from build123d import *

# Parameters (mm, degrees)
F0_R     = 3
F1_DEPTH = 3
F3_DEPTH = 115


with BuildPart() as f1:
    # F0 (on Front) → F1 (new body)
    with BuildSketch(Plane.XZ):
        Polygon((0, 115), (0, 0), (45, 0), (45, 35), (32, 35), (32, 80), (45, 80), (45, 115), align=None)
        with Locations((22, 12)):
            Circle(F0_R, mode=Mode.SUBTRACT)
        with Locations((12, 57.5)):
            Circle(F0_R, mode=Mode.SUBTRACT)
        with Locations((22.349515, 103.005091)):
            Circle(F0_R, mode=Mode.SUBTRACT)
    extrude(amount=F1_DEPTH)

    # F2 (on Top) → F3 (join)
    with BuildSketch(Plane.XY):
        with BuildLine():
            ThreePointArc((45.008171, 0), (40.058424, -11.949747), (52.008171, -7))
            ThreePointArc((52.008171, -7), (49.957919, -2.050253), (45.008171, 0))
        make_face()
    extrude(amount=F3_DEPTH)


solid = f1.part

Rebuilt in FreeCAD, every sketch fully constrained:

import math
import FreeCAD as App
import Part
import Sketcher
Q = App.Units.Quantity


def add_polygon(sketch, points):
    """Adds a closed chain of lines whose ends are joined by coincident constraints."""
    first, n = sketch.GeometryCount, len(points)
    for a, b in zip(points, points[1:] + points[:1]):
        sketch.addGeometry(Part.LineSegment(App.Vector(*a, 0), App.Vector(*b, 0)), False)
    for i in range(n):
        sketch.addConstraint(Sketcher.Constraint("Coincident", first + i, 2, first + (i + 1) % n, 1))

doc = App.newDocument("Part")
body = doc.addObject("PartDesign::Body", "Body")

sketch1 = doc.addObject("Sketcher::SketchObject", "Sketch")
body.addObject(sketch1)
sketch1.AttachmentSupport = (doc.XZ_Plane, [""])
sketch1.MapMode = "FlatFace"
add_polygon(sketch1, [(0, 115), (0, 0), (45, 0), (45, 35), (32, 35), (32, 80), (45, 80), (45, 115)])
sketch1.addGeometry(Part.Circle(App.Vector(12, 57.5, 0), App.Vector(0, 0, 1), 3), False)
sketch1.addGeometry(Part.Circle(App.Vector(22, 12, 0), App.Vector(0, 0, 1), 3), False)
sketch1.addGeometry(Part.Circle(App.Vector(22.3, 103, 0), App.Vector(0, 0, 1), 3), False)
sketch1.addConstraint([
    Sketcher.Constraint("Vertical", 0),
    Sketcher.Constraint("Horizontal", 1),
    Sketcher.Constraint("Vertical", 2),
    Sketcher.Constraint("Horizontal", 3),
    Sketcher.Constraint("Vertical", 4),
    Sketcher.Constraint("Horizontal", 5),
    Sketcher.Constraint("Vertical", 6),
    Sketcher.Constraint("Horizontal", 7),
    Sketcher.Constraint("Coincident", 0, 2, -1, 1),
    Sketcher.Constraint("Equal", 8, 9),
    Sketcher.Constraint("Equal", 9, 10),
    Sketcher.Constraint("Vertical", 2, 2, 5, 2),
    Sketcher.Constraint("Equal", 7, 4),
    Sketcher.Constraint("Equal", 2, 6),
    Sketcher.Constraint("Diameter", 8, Q("6 mm")),
    Sketcher.Constraint("DistanceX", 1, 1, 1, 2, Q("45 mm")),
    Sketcher.Constraint("DistanceX", 3, 2, 3, 1, Q("13 mm")),
    Sketcher.Constraint("DistanceY", 0, 2, 0, 1, Q("115 mm")),
    Sketcher.Constraint("DistanceX", -1, 1, 8, 3, Q("12 mm")),
    Sketcher.Constraint("DistanceX", -1, 1, 9, 3, Q("22 mm")),
    Sketcher.Constraint("DistanceY", -1, 1, 9, 3, Q("12 mm")),
    Sketcher.Constraint("DistanceY", -1, 1, 8, 3, Q("57.5 mm")),
    Sketcher.Constraint("DistanceY", -1, 1, 10, 3, Q("103.005091 mm")),
    Sketcher.Constraint("DistanceX", -1, 1, 10, 3, Q("22.349515 mm")),
])
pad1 = doc.addObject("PartDesign::Pad", "Pad")
body.addObject(pad1)
pad1.Profile = sketch1
pad1.Length = 3

sketch2 = doc.addObject("Sketcher::SketchObject", "Sketch001")
body.addObject(sketch2)
sketch2.AttachmentSupport = (doc.XY_Plane, [""])
sketch2.MapMode = "FlatFace"
sketch2.addGeometry([
    Part.ArcOfCircle(Part.Circle(App.Vector(45, -7, 0), App.Vector(0, 0, 1), 7), math.radians(90), math.radians(360)),
    Part.ArcOfCircle(Part.Circle(App.Vector(45, -7, 0), App.Vector(0, 0, 1), 7), math.radians(0), math.radians(90)),
], False)
sketch2.addConstraint([
    Sketcher.Constraint("Tangent", 0, 1, 1, 2),
    Sketcher.Constraint("Coincident", 1, 1, 0, 2),
    Sketcher.Constraint("PointOnObject", 0, 1, -1),
    Sketcher.Constraint("Horizontal", 0, 3, 1, 1),
    Sketcher.Constraint("Vertical", 1, 3, 0, 1),
    Sketcher.Constraint("Radius", 0, Q("7 mm")),
    Sketcher.Constraint("DistanceX", -1, 1, 0, 3, Q("45.008171 mm")),
])
pad2 = doc.addObject("PartDesign::Pad", "Pad001")
body.addObject(pad2)
pad2.Profile = sketch2
pad2.Length = 115

doc.recompute()
